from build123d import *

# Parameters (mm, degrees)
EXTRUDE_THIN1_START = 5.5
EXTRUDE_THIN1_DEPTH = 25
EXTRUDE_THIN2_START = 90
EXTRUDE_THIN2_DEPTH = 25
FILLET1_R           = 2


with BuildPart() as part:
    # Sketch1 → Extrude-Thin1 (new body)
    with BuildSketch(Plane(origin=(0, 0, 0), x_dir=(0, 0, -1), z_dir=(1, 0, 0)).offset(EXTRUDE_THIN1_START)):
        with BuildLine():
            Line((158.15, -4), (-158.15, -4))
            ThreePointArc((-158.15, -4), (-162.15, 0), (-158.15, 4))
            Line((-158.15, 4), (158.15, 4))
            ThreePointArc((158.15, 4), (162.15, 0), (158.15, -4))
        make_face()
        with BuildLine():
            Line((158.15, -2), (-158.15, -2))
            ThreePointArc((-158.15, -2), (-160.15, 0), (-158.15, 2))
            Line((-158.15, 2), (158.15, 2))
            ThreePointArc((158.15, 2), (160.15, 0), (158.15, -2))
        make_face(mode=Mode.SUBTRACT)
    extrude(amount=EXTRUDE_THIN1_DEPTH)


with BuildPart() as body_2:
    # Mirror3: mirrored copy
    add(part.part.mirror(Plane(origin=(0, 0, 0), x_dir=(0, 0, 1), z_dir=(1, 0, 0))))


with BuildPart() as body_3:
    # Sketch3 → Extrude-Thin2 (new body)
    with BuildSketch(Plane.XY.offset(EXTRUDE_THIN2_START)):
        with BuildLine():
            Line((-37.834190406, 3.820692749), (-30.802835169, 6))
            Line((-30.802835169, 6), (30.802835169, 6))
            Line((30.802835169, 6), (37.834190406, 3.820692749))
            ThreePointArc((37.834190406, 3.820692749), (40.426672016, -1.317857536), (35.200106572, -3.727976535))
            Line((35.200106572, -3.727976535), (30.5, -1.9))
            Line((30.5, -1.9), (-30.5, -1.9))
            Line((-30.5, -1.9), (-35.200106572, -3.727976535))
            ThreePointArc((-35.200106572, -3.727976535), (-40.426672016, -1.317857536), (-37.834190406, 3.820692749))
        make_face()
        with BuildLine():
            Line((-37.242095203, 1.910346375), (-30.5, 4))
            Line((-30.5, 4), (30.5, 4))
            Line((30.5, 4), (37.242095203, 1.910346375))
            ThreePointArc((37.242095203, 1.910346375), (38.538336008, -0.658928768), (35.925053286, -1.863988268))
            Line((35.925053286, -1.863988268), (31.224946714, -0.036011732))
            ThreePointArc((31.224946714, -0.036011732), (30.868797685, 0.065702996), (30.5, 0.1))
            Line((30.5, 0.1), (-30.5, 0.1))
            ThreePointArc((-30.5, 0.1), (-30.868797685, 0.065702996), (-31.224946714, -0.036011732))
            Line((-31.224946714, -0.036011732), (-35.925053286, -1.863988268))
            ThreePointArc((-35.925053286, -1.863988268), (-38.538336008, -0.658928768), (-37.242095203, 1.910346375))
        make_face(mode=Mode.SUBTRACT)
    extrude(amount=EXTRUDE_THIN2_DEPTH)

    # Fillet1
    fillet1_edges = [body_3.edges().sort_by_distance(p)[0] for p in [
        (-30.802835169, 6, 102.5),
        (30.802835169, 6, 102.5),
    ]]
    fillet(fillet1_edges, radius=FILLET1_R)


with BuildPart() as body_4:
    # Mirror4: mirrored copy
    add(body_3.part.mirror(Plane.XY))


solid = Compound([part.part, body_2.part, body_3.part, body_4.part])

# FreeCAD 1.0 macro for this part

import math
import FreeCAD as App
import Part
import Sketcher


def edges_at(feature, points):
    """Names of the edges that pass closest to the given points."""
    edges = feature.Shape.Edges
    near = lambda p: min(range(len(edges)), key=lambda i: edges[i].distToShape(Part.Vertex(*p))[0])
    return sorted({f"Edge{near(p) + 1}" for p in points})

doc = App.newDocument("Part")
body = doc.addObject("PartDesign::Body", "Body")

sketch1 = body.newObject("Sketcher::SketchObject", "Sketch")
sketch1.AttachmentSupport = (doc.getObject("YZ_Plane"), [""])
sketch1.MapMode = "FlatFace"
sketch1.AttachmentOffset = App.Placement(App.Vector(0, 0, 5.5), App.Rotation())
sketch1.addGeometry([
    Part.LineSegment(App.Vector(-4, 158.2, 0), App.Vector(-4, -158.2, 0)),
    Part.ArcOfCircle(Part.Circle(App.Vector(0, -158.2, 0), App.Vector(0, 0, 1), 4), math.radians(180), math.radians(360)),
    Part.LineSegment(App.Vector(4, -158.2, 0), App.Vector(4, 158.2, 0)),
    Part.ArcOfCircle(Part.Circle(App.Vector(0, 158.2, 0), App.Vector(0, 0, 1), 4), math.radians(0), math.radians(180)),
    Part.LineSegment(App.Vector(-2, -158.2, 0), App.Vector(-2, 158.2, 0)),
    Part.ArcOfCircle(Part.Circle(App.Vector(0, 158.2, 0), App.Vector(0, 0, 1), 2), math.radians(0), math.radians(180)),
    Part.LineSegment(App.Vector(2, 158.2, 0), App.Vector(2, -158.2, 0)),
    Part.ArcOfCircle(Part.Circle(App.Vector(0, -158.2, 0), App.Vector(0, 0, 1), 2), math.radians(180), math.radians(360)),
], False)
sketch1.addConstraint([
    Sketcher.Constraint("Tangent", 0, 2, 1, 1),
    Sketcher.Constraint("Tangent", 1, 2, 2, 1),
    Sketcher.Constraint("Tangent", 2, 2, 3, 1),
    Sketcher.Constraint("Tangent", 3, 2, 0, 1),
    Sketcher.Constraint("Tangent", 4, 2, 5, 2),
    Sketcher.Constraint("Tangent", 5, 1, 6, 1),
    Sketcher.Constraint("Tangent", 6, 2, 7, 2),
    Sketcher.Constraint("Tangent", 7, 1, 4, 1),
    Sketcher.Constraint("Vertical", 0),
    Sketcher.Constraint("Vertical", 2),
    Sketcher.Constraint("Vertical", 4),
    Sketcher.Constraint("Vertical", 6),
    Sketcher.Constraint("Coincident", 5, 3, 3, 3),
    Sketcher.Constraint("Symmetric", 1, 3, 3, 3, -1, 1),
    Sketcher.Constraint("Horizontal", 7, 3, 0, 2),
    Sketcher.Constraint("Radius", 1, 4.0),
    Sketcher.Constraint("Radius", 5, 2.0),
    Sketcher.Constraint("DistanceY", 0, 2, 0, 1, 316.3),
])
pad1 = body.newObject("PartDesign::Pad", "Pad")
pad1.Profile = sketch1
pad1.Length = 25
body2 = doc.addObject("PartDesign::Body", "Body001")
doc.recompute()

mirroring = doc.addObject("Part::Mirroring", "Mirroring")
mirroring.Source = body
mirroring.Base = App.Vector(0, 0, 0)
mirroring.Normal = App.Vector(1, 0, 0)
body2.BaseFeature = mirroring
doc.recompute()
body3 = doc.addObject("PartDesign::Body", "Body002")

sketch2 = body3.newObject("Sketcher::SketchObject", "Sketch001")
sketch2.AttachmentSupport = (doc.getObject("XY_Plane002"), [""])
sketch2.MapMode = "FlatFace"
sketch2.AttachmentOffset = App.Placement(App.Vector(0, 0, 90), App.Rotation())
sketch2.addGeometry([
    Part.LineSegment(App.Vector(-30.8, 6, 0), App.Vector(-37.8, 3.8, 0)),
    Part.ArcOfCircle(Part.Circle(App.Vector(-36.6, 0, 0), App.Vector(0, 0, 1), 4), math.radians(107), math.radians(291)),
    Part.LineSegment(App.Vector(-35.2, -3.7, 0), App.Vector(-30.5, -1.9, 0)),
    Part.LineSegment(App.Vector(-30.5, -1.9, 0), App.Vector(30.5, -1.9, 0)),
    Part.LineSegment(App.Vector(30.5, -1.9, 0), App.Vector(35.2, -3.7, 0)),
    Part.ArcOfCircle(Part.Circle(App.Vector(36.6, 0, 0), App.Vector(0, 0, 1), 4), math.radians(-111), math.radians(73)),
    Part.LineSegment(App.Vector(37.8, 3.8, 0), App.Vector(30.8, 6, 0)),
    Part.LineSegment(App.Vector(30.8, 6, 0), App.Vector(-30.8, 6, 0)),
    Part.LineSegment(App.Vector(-37.2, 1.9, 0), App.Vector(-30.5, 4, 0)),
    Part.LineSegment(App.Vector(-30.5, 4, 0), App.Vector(30.5, 4, 0)),
    Part.LineSegment(App.Vector(30.5, 4, 0), App.Vector(37.2, 1.9, 0)),
    Part.ArcOfCircle(Part.Circle(App.Vector(36.6, 0, 0), App.Vector(0, 0, 1), 2), math.radians(-111), math.radians(73)),
    Part.LineSegment(App.Vector(35.9, -1.9, 0), App.Vector(31.2, 0, 0)),
    Part.ArcOfCircle(Part.Circle(App.Vector(30.5, -1.9, 0), App.Vector(0, 0, 1), 2), math.radians(69), math.radians(90)),
    Part.LineSegment(App.Vector(30.5, 0.1, 0), App.Vector(-30.5, 0.1, 0)),
    Part.ArcOfCircle(Part.Circle(App.Vector(-30.5, -1.9, 0), App.Vector(0, 0, 1), 2), math.radians(90), math.radians(111)),
    Part.LineSegment(App.Vector(-31.2, 0, 0), App.Vector(-35.9, -1.9, 0)),
    Part.ArcOfCircle(Part.Circle(App.Vector(-36.6, 0, 0), App.Vector(0, 0, 1), 2), math.radians(107), math.radians(291)),
], False)
sketch2.addConstraint([
    Sketcher.Constraint("Tangent", 0, 2, 1, 1),
    Sketcher.Constraint("Tangent", 1, 2, 2, 1),
    Sketcher.Constraint("Coincident", 2, 2, 3, 1),
    Sketcher.Constraint("Coincident", 3, 2, 4, 1),
    Sketcher.Constraint("Tangent", 4, 2, 5, 1),
    Sketcher.Constraint("Tangent", 5, 2, 6, 1),
    Sketcher.Constraint("Coincident", 6, 2, 7, 1),
    Sketcher.Constraint("Coincident", 7, 2, 0, 1),
    Sketcher.Constraint("Coincident", 8, 2, 9, 1),
    Sketcher.Constraint("Coincident", 9, 2, 10, 1),
    Sketcher.Constraint("Tangent", 10, 2, 11, 2),
    Sketcher.Constraint("Tangent", 11, 1, 12, 1),
    Sketcher.Constraint("Tangent", 12, 2, 13, 1),
    Sketcher.Constraint("Tangent", 13, 2, 14, 1),
    Sketcher.Constraint("Tangent", 14, 2, 15, 1),
    Sketcher.Constraint("Tangent", 15, 2, 16, 1),
    Sketcher.Constraint("Tangent", 16, 2, 17, 2),
    Sketcher.Constraint("Tangent", 17, 1, 8, 1),
    Sketcher.Constraint("Horizontal", 3),
    Sketcher.Constraint("Horizontal", 7),
    Sketcher.Constraint("Horizontal", 9),
    Sketcher.Constraint("Horizontal", 14),
    Sketcher.Constraint("Coincident", 11, 3, 5, 3),
    Sketcher.Constraint("Coincident", 17, 3, 1, 3),
    Sketcher.Constraint("Coincident", 2, 2, 15, 3),
    Sketcher.Constraint("Coincident", 3, 2, 13, 3),
    Sketcher.Constraint("Equal", 1, 5),
    Sketcher.Constraint("Equal", 11, 13),
    Sketcher.Constraint("Equal", 15, 17),
    Sketcher.Constraint("Symmetric", 1, 3, 5, 3, -1, 1),
    Sketcher.Constraint("Symmetric", 1, 2, 4, 2, -2),
    Sketcher.Constraint("Parallel", 0, 8),
    Sketcher.Constraint("Parallel", 6, 10),
    Sketcher.Constraint("Parallel", 4, 12),
    Sketcher.Constraint("Horizontal", 0, 2, 5, 2),
    Sketcher.Constraint("Vertical", 2, 2, 8, 2),
    Sketcher.Constraint("Radius", 1, 4.0),
    Sketcher.Constraint("DistanceX", 3, 1, 3, 2, 61.0),
    Sketcher.Constraint("DistanceY", -1, 1, 6, 2, 6.0),
    Sketcher.Constraint("DistanceY", -1, 1, 8, 2, 4.0),
    Sketcher.Constraint("DistanceY", 13, 3, -1, 1, 1.9),
    Sketcher.Constraint("DistanceX", 1, 3, 5, 3, 73.3),
])
pad2 = body3.newObject("PartDesign::Pad", "Pad001")
pad2.Profile = sketch2
pad2.Length = 25
doc.recompute()

fillet = body3.newObject("PartDesign::Fillet", "Fillet")
fillet.Base = (pad2, edges_at(pad2, [(-30.803, 6, 102.5), (30.803, 6, 102.5)]))
fillet.Radius = 2
body4 = doc.addObject("PartDesign::Body", "Body003")
doc.recompute()

mirroring2 = doc.addObject("Part::Mirroring", "Mirroring001")
mirroring2.Source = body3
mirroring2.Base = App.Vector(0, 0, 0)
mirroring2.Normal = App.Vector(0, 0, 1)
body4.BaseFeature = mirroring2
doc.recompute()
mirroring.Visibility = False
mirroring2.Visibility = False

doc.recompute()
